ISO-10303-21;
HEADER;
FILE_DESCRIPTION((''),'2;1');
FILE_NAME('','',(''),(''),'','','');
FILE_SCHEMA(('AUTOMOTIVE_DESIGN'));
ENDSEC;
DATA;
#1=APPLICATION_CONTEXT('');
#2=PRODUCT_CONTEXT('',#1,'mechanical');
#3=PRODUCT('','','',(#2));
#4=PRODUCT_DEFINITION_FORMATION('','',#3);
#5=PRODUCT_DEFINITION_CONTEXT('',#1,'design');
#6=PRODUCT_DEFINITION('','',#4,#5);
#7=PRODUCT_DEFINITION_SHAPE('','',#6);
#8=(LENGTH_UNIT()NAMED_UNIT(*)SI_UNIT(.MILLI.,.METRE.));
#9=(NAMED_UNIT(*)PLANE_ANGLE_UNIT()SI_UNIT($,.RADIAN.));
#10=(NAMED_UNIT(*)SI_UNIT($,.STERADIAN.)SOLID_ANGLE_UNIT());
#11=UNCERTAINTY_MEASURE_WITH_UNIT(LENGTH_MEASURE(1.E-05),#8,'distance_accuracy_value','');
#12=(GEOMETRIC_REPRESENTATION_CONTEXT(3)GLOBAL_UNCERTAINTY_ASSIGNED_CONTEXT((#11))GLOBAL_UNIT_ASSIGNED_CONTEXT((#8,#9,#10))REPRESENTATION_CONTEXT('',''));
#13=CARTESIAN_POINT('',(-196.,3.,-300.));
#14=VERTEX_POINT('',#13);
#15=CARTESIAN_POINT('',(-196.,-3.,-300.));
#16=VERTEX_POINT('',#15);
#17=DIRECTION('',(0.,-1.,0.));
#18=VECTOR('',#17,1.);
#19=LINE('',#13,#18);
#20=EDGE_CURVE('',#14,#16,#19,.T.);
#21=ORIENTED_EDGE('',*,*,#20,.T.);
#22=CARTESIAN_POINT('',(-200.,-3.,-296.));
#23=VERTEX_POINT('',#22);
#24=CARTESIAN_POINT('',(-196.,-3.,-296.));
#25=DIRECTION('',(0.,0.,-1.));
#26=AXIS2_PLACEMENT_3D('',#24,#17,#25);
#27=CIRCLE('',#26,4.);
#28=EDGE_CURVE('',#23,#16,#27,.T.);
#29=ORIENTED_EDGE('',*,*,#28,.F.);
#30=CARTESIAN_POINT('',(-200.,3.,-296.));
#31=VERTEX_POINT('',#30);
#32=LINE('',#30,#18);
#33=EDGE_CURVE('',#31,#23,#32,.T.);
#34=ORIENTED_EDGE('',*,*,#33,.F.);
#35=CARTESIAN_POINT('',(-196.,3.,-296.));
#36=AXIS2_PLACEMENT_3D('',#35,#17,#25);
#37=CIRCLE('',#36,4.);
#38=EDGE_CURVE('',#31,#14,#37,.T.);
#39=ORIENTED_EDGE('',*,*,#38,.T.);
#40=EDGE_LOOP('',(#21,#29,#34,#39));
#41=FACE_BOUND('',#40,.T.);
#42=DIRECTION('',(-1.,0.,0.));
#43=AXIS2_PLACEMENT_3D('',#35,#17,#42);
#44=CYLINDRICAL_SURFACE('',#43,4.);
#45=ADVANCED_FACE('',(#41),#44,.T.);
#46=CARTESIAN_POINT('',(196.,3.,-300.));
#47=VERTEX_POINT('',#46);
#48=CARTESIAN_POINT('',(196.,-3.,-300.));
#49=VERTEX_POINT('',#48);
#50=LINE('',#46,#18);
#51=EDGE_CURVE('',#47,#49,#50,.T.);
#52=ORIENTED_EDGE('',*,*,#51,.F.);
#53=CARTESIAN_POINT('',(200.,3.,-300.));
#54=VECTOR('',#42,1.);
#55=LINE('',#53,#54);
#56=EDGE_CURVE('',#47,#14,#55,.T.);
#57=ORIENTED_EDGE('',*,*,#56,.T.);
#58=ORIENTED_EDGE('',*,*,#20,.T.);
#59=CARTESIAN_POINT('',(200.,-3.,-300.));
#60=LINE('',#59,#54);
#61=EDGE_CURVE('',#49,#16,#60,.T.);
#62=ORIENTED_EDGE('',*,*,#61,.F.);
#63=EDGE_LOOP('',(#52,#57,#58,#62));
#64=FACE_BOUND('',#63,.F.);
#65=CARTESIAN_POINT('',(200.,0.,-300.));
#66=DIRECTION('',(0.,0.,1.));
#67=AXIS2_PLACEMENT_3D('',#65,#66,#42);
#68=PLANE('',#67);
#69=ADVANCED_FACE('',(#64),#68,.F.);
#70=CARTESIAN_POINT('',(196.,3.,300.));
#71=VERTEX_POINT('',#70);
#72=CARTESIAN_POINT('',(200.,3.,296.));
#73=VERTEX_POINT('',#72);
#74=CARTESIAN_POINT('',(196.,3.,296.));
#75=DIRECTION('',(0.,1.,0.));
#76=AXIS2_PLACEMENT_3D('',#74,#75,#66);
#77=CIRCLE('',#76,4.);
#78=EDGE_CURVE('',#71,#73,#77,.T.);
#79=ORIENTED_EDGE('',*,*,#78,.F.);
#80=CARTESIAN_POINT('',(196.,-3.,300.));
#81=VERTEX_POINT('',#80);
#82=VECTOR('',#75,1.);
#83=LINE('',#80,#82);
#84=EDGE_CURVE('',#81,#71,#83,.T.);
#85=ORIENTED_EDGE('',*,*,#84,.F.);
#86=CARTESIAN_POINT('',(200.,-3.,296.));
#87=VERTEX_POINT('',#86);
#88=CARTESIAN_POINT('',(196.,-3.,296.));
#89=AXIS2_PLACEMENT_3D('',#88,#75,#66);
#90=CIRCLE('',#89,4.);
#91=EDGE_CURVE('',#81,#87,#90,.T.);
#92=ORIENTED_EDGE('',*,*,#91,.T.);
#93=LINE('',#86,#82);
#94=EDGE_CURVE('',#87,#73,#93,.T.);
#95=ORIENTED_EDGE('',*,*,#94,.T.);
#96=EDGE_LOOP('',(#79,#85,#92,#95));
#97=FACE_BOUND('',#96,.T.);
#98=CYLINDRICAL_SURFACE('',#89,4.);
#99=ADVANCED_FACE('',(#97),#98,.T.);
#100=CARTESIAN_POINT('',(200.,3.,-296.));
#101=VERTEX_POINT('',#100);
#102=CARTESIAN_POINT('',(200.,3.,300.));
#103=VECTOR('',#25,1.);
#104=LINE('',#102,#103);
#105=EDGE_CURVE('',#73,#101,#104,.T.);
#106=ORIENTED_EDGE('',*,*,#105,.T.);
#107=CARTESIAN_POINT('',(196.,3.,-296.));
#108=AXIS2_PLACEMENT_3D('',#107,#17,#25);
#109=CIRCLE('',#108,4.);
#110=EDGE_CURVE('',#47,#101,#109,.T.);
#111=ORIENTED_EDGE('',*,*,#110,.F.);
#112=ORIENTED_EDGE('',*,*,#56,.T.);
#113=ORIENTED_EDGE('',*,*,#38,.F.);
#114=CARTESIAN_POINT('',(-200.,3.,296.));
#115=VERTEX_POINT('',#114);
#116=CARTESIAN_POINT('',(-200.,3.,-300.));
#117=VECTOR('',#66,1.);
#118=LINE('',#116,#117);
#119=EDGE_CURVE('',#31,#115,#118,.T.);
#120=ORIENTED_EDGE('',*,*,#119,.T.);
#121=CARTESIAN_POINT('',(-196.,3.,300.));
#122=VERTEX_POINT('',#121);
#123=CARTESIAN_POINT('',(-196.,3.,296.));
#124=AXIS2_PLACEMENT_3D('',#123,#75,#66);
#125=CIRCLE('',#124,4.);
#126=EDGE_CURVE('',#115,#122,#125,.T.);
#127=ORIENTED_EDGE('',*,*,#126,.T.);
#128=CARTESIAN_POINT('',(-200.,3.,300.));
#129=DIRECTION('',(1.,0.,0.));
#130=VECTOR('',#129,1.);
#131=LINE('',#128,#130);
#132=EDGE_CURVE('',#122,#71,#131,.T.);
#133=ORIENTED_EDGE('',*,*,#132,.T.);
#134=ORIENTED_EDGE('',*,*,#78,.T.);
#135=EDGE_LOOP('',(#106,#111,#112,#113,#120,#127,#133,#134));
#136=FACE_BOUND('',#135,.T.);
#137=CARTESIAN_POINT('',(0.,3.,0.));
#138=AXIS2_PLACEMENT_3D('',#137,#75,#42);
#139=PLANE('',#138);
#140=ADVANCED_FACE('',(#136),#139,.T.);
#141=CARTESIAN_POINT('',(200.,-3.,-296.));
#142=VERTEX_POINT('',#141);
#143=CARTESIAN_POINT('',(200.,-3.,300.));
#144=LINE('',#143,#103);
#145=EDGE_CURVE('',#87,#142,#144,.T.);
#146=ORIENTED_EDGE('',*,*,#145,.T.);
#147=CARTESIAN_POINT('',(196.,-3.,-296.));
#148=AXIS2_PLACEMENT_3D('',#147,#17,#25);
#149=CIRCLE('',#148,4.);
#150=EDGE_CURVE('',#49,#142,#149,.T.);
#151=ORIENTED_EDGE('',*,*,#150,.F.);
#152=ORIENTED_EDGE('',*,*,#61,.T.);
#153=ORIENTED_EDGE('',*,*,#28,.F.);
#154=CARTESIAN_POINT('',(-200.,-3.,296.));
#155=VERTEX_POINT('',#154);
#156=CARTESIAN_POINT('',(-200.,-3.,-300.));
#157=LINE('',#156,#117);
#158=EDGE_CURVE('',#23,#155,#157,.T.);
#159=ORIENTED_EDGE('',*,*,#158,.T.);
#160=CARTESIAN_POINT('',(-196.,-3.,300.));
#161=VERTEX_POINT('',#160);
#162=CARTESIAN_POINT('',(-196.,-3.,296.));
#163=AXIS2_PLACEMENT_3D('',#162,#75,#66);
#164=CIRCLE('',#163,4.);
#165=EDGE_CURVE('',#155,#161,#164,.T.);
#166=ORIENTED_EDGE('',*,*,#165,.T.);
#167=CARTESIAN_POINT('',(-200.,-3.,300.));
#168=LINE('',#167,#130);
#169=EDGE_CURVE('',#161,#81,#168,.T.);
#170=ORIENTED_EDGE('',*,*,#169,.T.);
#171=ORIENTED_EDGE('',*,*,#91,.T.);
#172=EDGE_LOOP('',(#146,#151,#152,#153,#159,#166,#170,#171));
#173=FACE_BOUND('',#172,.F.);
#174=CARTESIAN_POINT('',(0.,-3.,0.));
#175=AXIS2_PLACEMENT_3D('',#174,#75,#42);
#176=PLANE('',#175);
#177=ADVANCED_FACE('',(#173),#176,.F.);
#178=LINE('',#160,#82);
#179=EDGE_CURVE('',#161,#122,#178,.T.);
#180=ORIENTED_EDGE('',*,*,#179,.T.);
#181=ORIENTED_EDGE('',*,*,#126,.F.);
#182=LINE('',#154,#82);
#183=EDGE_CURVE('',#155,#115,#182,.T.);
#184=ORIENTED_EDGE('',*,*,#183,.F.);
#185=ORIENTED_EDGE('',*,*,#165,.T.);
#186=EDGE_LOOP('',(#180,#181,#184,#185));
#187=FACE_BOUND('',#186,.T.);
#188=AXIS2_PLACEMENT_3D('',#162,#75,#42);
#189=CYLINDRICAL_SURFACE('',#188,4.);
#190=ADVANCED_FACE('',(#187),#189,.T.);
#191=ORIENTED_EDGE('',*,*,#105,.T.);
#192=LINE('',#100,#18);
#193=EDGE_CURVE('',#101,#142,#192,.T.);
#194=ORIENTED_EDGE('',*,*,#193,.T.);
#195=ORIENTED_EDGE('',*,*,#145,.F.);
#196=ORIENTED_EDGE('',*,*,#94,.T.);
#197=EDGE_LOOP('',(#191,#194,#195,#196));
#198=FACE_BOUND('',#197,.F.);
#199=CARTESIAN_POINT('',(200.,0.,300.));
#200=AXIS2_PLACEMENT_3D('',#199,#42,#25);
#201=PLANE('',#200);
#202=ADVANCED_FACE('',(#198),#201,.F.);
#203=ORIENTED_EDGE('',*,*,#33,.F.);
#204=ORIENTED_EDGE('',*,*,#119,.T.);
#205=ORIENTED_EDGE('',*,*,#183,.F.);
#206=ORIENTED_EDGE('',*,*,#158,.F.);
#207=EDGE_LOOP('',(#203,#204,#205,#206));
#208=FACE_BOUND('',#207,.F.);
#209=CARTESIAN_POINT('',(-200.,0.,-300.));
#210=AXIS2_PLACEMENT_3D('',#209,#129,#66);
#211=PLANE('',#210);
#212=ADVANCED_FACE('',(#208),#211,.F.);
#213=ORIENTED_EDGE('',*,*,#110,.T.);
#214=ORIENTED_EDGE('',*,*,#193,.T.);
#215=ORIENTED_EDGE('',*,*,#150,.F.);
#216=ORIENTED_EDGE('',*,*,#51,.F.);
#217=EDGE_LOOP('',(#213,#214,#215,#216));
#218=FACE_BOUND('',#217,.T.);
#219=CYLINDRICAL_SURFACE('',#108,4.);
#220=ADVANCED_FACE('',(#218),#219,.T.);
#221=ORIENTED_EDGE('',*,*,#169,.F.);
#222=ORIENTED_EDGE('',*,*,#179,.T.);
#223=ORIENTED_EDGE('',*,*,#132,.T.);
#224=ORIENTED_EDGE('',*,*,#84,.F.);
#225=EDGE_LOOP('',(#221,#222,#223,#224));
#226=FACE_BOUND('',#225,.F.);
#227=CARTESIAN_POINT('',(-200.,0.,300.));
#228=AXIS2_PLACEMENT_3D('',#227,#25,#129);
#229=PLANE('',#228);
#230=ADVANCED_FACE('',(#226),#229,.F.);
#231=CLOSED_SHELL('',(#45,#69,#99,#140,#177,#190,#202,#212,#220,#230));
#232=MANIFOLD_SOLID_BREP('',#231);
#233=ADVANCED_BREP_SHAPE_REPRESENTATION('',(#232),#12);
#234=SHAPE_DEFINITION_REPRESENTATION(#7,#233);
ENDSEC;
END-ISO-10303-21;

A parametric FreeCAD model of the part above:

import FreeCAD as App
import Part
import Sketcher


def edges_at(feature, points):
    """Names of the edges that pass closest to the given points."""
    edges = feature.Shape.Edges
    near = lambda p: min(range(len(edges)), key=lambda i: edges[i].distToShape(Part.Vertex(*p))[0])
    return sorted({f"Edge{near(p) + 1}" for p in points})

doc = App.newDocument("Part")
params = doc.addObject("Spreadsheet::Sheet", "Params")
for row, (alias, value) in enumerate([
    ("sketch1_width", "400 mm"),
    ("sketch1_height", "600 mm"),
    ("pad1_length", "6 mm"),
    ("fillet_radius", "4 mm"),
], start=1):
    params.set(f"A{row}", alias)
    params.set(f"B{row}", "=" + value)
    params.setAlias(f"B{row}", alias)

body = doc.addObject("PartDesign::Body", "Body")

# Sketch on XZ plane
sketch1 = body.newObject("Sketcher::SketchObject", "Sketch")
sketch1.AttachmentSupport = (doc.getObject("XZ_Plane"), [""])
sketch1.MapMode = "FlatFace"
sketch1.addGeometry([
    Part.LineSegment(App.Vector(-200, -300, 0), App.Vector(-200, 300, 0)),
    Part.LineSegment(App.Vector(-200, 300, 0), App.Vector(200, 300, 0)),
    Part.LineSegment(App.Vector(200, 300, 0), App.Vector(200, -300, 0)),
    Part.LineSegment(App.Vector(200, -300, 0), App.Vector(-200, -300, 0)),
], False)
sketch1.addConstraint([
    Sketcher.Constraint("Coincident", 0, 2, 1, 1),
    Sketcher.Constraint("Coincident", 1, 2, 2, 1),
    Sketcher.Constraint("Coincident", 2, 2, 3, 1),
    Sketcher.Constraint("Coincident", 3, 2, 0, 1),
    Sketcher.Constraint("Vertical", 0),
    Sketcher.Constraint("Horizontal", 1),
    Sketcher.Constraint("Vertical", 2),
    Sketcher.Constraint("Horizontal", 3),
    Sketcher.Constraint("Symmetric", 0, 2, 2, 2, -1, 1),
    Sketcher.Constraint("DistanceX", 1, 1, 1, 2, 400.0),
    Sketcher.Constraint("DistanceY", 0, 1, 0, 2, 600.0),
])
sketch1.setExpression("Constraints[9]", "Params.sketch1_width")
sketch1.setExpression("Constraints[10]", "Params.sketch1_height")
pad1 = body.newObject("PartDesign::Pad", "Pad")
pad1.Profile = sketch1
pad1.setExpression("Length", "Params.pad1_length")
pad1.Midplane = True
doc.recompute()

fillet = body.newObject("PartDesign::Fillet", "Fillet")
fillet.Base = (pad1, edges_at(pad1, [
    (-200, 0, -300),
    (200, 0, -300),
    (200, 0, 300),
    (-200, 0, 300),
]))
fillet.setExpression("Radius", "Params.fillet_radius")

doc.recompute()
